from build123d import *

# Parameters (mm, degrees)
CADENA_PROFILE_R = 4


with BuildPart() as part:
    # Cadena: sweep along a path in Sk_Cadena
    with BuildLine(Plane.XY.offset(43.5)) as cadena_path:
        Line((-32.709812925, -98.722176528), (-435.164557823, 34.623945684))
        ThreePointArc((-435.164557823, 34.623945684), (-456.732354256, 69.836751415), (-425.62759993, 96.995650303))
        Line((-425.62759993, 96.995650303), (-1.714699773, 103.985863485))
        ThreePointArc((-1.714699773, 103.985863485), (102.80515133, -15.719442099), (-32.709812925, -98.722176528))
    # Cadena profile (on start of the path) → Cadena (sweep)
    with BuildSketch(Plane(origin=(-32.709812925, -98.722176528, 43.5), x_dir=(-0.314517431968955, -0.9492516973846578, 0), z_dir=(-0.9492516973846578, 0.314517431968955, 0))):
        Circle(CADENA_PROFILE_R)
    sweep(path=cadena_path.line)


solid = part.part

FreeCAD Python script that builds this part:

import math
import FreeCAD as App
import Part
import Sketcher

doc = App.newDocument("Part")
params = doc.addObject("Spreadsheet::Sheet", "Params")
for row, (alias, value) in enumerate([
    ("sketch1_diameter", "8 mm"),
    ("sketch2_radius", "32 mm"),
    ("sketch2_radius2", "104 mm"),
], start=1):
    params.set(f"A{row}", alias)
    params.set(f"B{row}", "=" + value)
    params.setAlias(f"B{row}", alias)

body = doc.addObject("PartDesign::Body", "Body")

# Sketch on an angled plane
sketch1 = body.newObject("Sketcher::SketchObject", "Sketch")
sketch1.Placement = App.Placement(App.Vector(-32.709813, -98.722177, 43.5), App.Rotation(App.Vector(-0.314517432, -0.949251697, 0), App.Vector(0, 0, 0.999999999), App.Vector(-0.949251697, 0.314517432, 0), "ZXY"))
sketch1.addGeometry(Part.Circle(App.Vector(0, 0, 0), App.Vector(0, 0, 1), 4), False)
sketch1.addConstraint([
    Sketcher.Constraint("Coincident", 0, 3, -1, 1),
    Sketcher.Constraint("Diameter", 0, 8.0),
])
sketch1.setExpression("Constraints[1]", "Params.sketch1_diameter")

# Sketch on XY plane
sketch2 = body.newObject("Sketcher::SketchObject", "Sketch001")
sketch2.AttachmentSupport = (doc.getObject("XY_Plane"), [""])
sketch2.MapMode = "FlatFace"
sketch2.AttachmentOffset = App.Placement(App.Vector(0, 0, 43.5), App.Rotation())
sketch2.addGeometry([
    Part.LineSegment(App.Vector(-33, -99, 0), App.Vector(-435, 35, 0)),
    Part.ArcOfCircle(Part.Circle(App.Vector(-425, 65, 0), App.Vector(0, 0, 1), 32), math.radians(91), math.radians(252)),
    Part.LineSegment(App.Vector(-426, 97, 0), App.Vector(-2, 104, 0)),
    Part.ArcOfCircle(Part.Circle(App.Vector(0, 0, 0), App.Vector(0, 0, 1), 104), math.radians(-108), math.radians(91)),
], False)
sketch2.addConstraint([
    Sketcher.Constraint("Tangent", 0, 2, 1, 2),
    Sketcher.Constraint("Tangent", 1, 1, 2, 1),
    Sketcher.Constraint("Tangent", 2, 2, 3, 2),
    Sketcher.Constraint("Tangent", 3, 1, 0, 1),
    Sketcher.Constraint("Coincident", 3, 3, -1, 1),
    Sketcher.Constraint("Radius", 1, 32.0),
    Sketcher.Constraint("Radius", 3, 104.0),
    Sketcher.Constraint("DistanceY", -1, 1, 1, 3, 65.0),
    Sketcher.Constraint("DistanceX", 1, 3, -1, 1, 425.1),
])
sketch2.setExpression("Constraints[5]", "Params.sketch2_radius")
sketch2.setExpression("Constraints[6]", "Params.sketch2_radius2")
doc.recompute()

additivepipe = body.newObject("PartDesign::AdditivePipe", "AdditivePipe")
additivepipe.Profile = sketch1
additivepipe.Spine = (sketch2, ["Edge1", "Edge2", "Edge3", "Edge4"])

doc.recompute()
